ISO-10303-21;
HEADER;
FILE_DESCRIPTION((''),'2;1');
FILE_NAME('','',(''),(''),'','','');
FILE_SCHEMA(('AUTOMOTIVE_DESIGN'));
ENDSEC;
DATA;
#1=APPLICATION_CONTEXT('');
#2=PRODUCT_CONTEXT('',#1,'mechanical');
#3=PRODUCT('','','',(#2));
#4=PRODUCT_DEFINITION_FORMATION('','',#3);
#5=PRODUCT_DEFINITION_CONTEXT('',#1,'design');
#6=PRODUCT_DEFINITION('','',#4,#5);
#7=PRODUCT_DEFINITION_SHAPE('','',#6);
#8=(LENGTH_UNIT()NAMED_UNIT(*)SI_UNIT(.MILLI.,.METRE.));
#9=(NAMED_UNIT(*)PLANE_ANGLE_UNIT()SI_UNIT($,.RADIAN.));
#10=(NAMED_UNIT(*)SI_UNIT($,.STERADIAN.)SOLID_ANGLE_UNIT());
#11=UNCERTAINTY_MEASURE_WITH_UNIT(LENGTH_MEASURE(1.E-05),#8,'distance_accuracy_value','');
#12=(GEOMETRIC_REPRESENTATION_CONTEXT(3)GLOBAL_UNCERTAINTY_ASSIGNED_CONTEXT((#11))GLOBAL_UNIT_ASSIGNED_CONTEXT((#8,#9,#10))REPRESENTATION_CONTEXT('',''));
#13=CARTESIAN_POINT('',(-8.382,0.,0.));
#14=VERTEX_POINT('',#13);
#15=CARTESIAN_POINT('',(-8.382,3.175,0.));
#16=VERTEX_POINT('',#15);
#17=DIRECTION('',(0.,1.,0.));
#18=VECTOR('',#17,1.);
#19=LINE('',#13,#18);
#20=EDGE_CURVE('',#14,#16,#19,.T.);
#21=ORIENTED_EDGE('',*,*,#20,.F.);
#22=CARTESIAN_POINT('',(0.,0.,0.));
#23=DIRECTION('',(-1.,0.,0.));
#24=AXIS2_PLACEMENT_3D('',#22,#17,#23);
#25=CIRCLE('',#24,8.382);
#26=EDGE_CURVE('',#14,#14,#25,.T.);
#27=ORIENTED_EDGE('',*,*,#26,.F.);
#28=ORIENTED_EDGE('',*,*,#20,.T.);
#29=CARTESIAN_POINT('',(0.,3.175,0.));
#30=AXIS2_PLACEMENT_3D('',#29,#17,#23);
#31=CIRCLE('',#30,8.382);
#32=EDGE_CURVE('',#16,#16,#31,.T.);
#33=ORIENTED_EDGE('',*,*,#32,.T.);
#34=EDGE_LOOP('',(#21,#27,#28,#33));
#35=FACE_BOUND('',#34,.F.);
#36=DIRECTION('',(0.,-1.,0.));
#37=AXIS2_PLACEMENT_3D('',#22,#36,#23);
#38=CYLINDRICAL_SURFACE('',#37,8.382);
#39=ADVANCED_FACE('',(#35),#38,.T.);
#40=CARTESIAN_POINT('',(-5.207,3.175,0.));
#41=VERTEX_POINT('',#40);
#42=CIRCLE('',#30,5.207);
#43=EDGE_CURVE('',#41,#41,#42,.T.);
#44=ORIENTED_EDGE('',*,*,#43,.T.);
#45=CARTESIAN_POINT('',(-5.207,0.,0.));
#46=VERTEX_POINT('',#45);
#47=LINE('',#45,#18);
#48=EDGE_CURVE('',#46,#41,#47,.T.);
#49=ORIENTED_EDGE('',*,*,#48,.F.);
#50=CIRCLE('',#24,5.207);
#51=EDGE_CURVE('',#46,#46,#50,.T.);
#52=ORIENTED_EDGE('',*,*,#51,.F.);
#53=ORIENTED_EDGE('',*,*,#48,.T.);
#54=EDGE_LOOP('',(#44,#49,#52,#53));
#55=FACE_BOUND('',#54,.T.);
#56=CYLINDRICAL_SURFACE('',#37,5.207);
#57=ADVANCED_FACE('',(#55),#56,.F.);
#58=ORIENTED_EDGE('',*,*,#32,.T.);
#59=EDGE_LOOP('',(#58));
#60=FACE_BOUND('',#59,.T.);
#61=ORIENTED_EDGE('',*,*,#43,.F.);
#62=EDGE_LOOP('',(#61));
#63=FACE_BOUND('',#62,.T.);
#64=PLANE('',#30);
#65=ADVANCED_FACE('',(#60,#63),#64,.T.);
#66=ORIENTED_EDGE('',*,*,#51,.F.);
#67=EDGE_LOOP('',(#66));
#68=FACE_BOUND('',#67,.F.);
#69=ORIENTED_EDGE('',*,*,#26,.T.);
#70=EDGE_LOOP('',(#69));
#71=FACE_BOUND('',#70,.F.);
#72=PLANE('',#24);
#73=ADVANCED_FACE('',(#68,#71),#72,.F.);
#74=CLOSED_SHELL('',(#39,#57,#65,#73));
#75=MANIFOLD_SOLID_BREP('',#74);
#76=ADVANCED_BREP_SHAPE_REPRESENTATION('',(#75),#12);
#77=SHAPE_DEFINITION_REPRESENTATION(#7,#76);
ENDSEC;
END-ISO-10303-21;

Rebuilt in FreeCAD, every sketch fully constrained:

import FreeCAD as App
import Part
import Sketcher
Q = App.Units.Quantity

doc = App.newDocument("Part")
params = doc.addObject("Spreadsheet::Sheet", "Params")
for row, (alias, value) in enumerate([
    ("sketch1_diameter", "0.41 in"),
    ("sketch1_diameter2", "0.66 in"),
    ("pad1_length", "0.125 in"),
], start=1):
    params.set(f"A{row}", alias)
    params.set(f"B{row}", "=" + value)
    params.setAlias(f"B{row}", alias)

body = doc.addObject("PartDesign::Body", "Body")

# Sketch on XZ plane
sketch1 = body.newObject("Sketcher::SketchObject", "Sketch")
sketch1.AttachmentSupport = (doc.getObject("XZ_Plane"), [""])
sketch1.MapMode = "FlatFace"
sketch1.addGeometry([
    Part.Circle(App.Vector(0, 0, 0), App.Vector(0, 0, 1), 8),
    Part.Circle(App.Vector(0, 0, 0), App.Vector(0, 0, 1), 5),
], False)
sketch1.addConstraint([
    Sketcher.Constraint("Coincident", 0, 3, -1, 1),
    Sketcher.Constraint("Coincident", 1, 3, -1, 1),
    Sketcher.Constraint("Diameter", 1, Q("0.41 in")),
    Sketcher.Constraint("Diameter", 0, Q("0.66 in")),
])
sketch1.setExpression("Constraints[2]", "Params.sketch1_diameter")
sketch1.setExpression("Constraints[3]", "Params.sketch1_diameter2")
pad1 = body.newObject("PartDesign::Pad", "Pad")
pad1.Profile = sketch1
pad1.setExpression("Length", "Params.pad1_length")
pad1.Reversed = True

doc.recompute()
